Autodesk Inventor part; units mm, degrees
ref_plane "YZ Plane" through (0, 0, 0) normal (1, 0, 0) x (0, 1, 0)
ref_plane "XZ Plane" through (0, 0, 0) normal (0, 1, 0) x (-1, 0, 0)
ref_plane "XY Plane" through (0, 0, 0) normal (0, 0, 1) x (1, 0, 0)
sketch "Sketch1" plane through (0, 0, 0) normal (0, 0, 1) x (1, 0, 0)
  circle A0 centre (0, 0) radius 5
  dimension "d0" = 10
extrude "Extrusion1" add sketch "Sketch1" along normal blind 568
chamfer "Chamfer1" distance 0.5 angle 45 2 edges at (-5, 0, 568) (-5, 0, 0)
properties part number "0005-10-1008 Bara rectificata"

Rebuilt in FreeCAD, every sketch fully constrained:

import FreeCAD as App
import Part
import Sketcher

V = App.Vector
Q = App.Units.Quantity


def edges_at(feature, points):
    """Names of the edges that pass closest to the given points."""
    edges = feature.Shape.Edges
    near = lambda p: min(range(len(edges)), key=lambda i: edges[i].distToShape(Part.Vertex(*p))[0])
    return sorted({f"Edge{near(p) + 1}" for p in points})

doc = App.newDocument("Part")
body = doc.addObject("PartDesign::Body", "Body")

# Sketch on XY plane
sketch1 = body.newObject("Sketcher::SketchObject", "Sketch")
sketch1.AttachmentSupport = (doc.getObject("XY_Plane"), [""])
sketch1.MapMode = "FlatFace"
sketch1.addGeometry(Part.Circle(V(0, 0, 0), V(0, 0, 1), 5), False)
sketch1.addConstraint([
    Sketcher.Constraint("Coincident", 0, 3, -1, 1),
    Sketcher.Constraint("Diameter", 0, Q("10 mm")),
])
pad1 = body.newObject("PartDesign::Pad", "Pad")
pad1.Profile = sketch1
pad1.Length = 568
doc.recompute()

chamfer = body.newObject("PartDesign::Chamfer", "Chamfer")
chamfer.Base = (pad1, edges_at(pad1, [(-5, 0, 568), (-5, 0, 0)]))
chamfer.Size = 0.5

doc.recompute()
